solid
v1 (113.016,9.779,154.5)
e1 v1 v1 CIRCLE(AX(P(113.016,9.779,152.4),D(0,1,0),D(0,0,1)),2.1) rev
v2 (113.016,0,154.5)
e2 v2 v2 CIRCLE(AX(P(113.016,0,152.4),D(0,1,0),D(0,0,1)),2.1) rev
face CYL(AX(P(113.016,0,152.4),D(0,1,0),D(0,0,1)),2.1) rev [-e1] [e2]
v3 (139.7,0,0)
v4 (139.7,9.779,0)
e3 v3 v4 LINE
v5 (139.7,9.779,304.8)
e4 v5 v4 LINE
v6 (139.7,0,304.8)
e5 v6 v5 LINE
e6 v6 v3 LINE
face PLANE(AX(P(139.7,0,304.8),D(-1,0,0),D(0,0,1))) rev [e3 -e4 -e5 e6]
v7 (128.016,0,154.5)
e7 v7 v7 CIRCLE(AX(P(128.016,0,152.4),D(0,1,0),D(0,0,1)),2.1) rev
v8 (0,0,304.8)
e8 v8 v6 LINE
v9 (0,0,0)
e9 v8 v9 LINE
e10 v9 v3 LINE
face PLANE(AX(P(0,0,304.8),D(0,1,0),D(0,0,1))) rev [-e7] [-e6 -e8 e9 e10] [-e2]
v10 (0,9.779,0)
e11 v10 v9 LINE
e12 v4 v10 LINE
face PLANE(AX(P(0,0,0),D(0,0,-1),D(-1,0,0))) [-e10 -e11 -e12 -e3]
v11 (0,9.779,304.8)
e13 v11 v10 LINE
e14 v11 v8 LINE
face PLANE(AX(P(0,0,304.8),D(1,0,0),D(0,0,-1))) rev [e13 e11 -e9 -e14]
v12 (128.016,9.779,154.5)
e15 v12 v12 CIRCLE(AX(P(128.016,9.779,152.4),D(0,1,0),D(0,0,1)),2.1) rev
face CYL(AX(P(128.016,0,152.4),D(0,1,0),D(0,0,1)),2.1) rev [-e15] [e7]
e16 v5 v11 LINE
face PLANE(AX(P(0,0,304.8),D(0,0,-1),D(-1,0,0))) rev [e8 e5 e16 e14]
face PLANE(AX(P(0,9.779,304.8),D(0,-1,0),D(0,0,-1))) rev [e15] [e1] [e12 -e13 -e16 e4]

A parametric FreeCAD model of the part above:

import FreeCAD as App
import Part
import Sketcher
Q = App.Units.Quantity


def add_polygon(sketch, points):
    """Adds a closed chain of lines whose ends are joined by coincident constraints."""
    first, n = sketch.GeometryCount, len(points)
    for a, b in zip(points, points[1:] + points[:1]):
        sketch.addGeometry(Part.LineSegment(App.Vector(*a, 0), App.Vector(*b, 0)), False)
    for i in range(n):
        sketch.addConstraint(Sketcher.Constraint("Coincident", first + i, 2, first + (i + 1) % n, 1))

doc = App.newDocument("Part")
params = doc.addObject("Spreadsheet::Sheet", "Params")
for row, (alias, value) in enumerate([
    ("sketch1_width", "5.5 in"),
    ("sketch1_height", "0.385 in"),
    ("pad1_length", "12 in"),
], start=1):
    params.set(f"A{row}", alias)
    params.set(f"B{row}", "=" + value)
    params.setAlias(f"B{row}", alias)

body = doc.addObject("PartDesign::Body", "Body")

# Sketch on XY plane
sketch1 = body.newObject("Sketcher::SketchObject", "Sketch")
sketch1.AttachmentSupport = (doc.getObject("XY_Plane"), [""])
sketch1.MapMode = "FlatFace"
add_polygon(sketch1, [(0, 10), (0, 0), (140, 0), (140, 10)])  # lines 0-3
sketch1.addConstraint(Sketcher.Constraint("Vertical", 0))
sketch1.addConstraint(Sketcher.Constraint("Horizontal", 1))
sketch1.addConstraint(Sketcher.Constraint("Vertical", 2))
sketch1.addConstraint(Sketcher.Constraint("Horizontal", 3))
sketch1.addConstraint(Sketcher.Constraint("Coincident", 0, 2, -1, 1))
sketch1.addConstraint(Sketcher.Constraint("DistanceX", 1, 1, 1, 2, Q("5.5 in")))
sketch1.addConstraint(Sketcher.Constraint("DistanceY", 0, 2, 0, 1, Q("0.385 in")))
sketch1.setExpression("Constraints[9]", "Params.sketch1_width")
sketch1.setExpression("Constraints[10]", "Params.sketch1_height")
pad1 = body.newObject("PartDesign::Pad", "Pad")
pad1.Profile = sketch1
pad1.setExpression("Length", "Params.pad1_length")

# Sketch on XZ plane
sketch2 = body.newObject("Sketcher::SketchObject", "Sketch001")
sketch2.AttachmentSupport = (doc.getObject("XZ_Plane"), [""])
sketch2.MapMode = "FlatFace"
sketch2.AttachmentOffset = App.Placement(App.Vector(0, 0, -0.385 * 25.4), App.Rotation())
sketch2.addGeometry(Part.Circle(App.Vector(113, 152.4, 0), App.Vector(0, 0, 1), 2.1), False)
sketch2.addGeometry(Part.Circle(App.Vector(128, 152.4, 0), App.Vector(0, 0, 1), 2.1), False)
sketch2.addConstraint(Sketcher.Constraint("Equal", 0, 1))
sketch2.addConstraint(Sketcher.Constraint("Horizontal", 0, 3, 1, 3))
sketch2.addConstraint(Sketcher.Constraint("DistanceY", -1, 1, 0, 3, Q("6 in")))
sketch2.addConstraint(Sketcher.Constraint("Diameter", 0, 4.2))
sketch2.addConstraint(Sketcher.Constraint("DistanceX", -1, 1, 1, 3, Q("5.04 in")))
sketch2.addConstraint(Sketcher.Constraint("DistanceX", -1, 1, 0, 3, 113.016))
pocket1 = body.newObject("PartDesign::Pocket", "Pocket")
pocket1.Profile = sketch2
pocket1.Type = "ThroughAll"
pocket1.Reversed = True

doc.recompute()
